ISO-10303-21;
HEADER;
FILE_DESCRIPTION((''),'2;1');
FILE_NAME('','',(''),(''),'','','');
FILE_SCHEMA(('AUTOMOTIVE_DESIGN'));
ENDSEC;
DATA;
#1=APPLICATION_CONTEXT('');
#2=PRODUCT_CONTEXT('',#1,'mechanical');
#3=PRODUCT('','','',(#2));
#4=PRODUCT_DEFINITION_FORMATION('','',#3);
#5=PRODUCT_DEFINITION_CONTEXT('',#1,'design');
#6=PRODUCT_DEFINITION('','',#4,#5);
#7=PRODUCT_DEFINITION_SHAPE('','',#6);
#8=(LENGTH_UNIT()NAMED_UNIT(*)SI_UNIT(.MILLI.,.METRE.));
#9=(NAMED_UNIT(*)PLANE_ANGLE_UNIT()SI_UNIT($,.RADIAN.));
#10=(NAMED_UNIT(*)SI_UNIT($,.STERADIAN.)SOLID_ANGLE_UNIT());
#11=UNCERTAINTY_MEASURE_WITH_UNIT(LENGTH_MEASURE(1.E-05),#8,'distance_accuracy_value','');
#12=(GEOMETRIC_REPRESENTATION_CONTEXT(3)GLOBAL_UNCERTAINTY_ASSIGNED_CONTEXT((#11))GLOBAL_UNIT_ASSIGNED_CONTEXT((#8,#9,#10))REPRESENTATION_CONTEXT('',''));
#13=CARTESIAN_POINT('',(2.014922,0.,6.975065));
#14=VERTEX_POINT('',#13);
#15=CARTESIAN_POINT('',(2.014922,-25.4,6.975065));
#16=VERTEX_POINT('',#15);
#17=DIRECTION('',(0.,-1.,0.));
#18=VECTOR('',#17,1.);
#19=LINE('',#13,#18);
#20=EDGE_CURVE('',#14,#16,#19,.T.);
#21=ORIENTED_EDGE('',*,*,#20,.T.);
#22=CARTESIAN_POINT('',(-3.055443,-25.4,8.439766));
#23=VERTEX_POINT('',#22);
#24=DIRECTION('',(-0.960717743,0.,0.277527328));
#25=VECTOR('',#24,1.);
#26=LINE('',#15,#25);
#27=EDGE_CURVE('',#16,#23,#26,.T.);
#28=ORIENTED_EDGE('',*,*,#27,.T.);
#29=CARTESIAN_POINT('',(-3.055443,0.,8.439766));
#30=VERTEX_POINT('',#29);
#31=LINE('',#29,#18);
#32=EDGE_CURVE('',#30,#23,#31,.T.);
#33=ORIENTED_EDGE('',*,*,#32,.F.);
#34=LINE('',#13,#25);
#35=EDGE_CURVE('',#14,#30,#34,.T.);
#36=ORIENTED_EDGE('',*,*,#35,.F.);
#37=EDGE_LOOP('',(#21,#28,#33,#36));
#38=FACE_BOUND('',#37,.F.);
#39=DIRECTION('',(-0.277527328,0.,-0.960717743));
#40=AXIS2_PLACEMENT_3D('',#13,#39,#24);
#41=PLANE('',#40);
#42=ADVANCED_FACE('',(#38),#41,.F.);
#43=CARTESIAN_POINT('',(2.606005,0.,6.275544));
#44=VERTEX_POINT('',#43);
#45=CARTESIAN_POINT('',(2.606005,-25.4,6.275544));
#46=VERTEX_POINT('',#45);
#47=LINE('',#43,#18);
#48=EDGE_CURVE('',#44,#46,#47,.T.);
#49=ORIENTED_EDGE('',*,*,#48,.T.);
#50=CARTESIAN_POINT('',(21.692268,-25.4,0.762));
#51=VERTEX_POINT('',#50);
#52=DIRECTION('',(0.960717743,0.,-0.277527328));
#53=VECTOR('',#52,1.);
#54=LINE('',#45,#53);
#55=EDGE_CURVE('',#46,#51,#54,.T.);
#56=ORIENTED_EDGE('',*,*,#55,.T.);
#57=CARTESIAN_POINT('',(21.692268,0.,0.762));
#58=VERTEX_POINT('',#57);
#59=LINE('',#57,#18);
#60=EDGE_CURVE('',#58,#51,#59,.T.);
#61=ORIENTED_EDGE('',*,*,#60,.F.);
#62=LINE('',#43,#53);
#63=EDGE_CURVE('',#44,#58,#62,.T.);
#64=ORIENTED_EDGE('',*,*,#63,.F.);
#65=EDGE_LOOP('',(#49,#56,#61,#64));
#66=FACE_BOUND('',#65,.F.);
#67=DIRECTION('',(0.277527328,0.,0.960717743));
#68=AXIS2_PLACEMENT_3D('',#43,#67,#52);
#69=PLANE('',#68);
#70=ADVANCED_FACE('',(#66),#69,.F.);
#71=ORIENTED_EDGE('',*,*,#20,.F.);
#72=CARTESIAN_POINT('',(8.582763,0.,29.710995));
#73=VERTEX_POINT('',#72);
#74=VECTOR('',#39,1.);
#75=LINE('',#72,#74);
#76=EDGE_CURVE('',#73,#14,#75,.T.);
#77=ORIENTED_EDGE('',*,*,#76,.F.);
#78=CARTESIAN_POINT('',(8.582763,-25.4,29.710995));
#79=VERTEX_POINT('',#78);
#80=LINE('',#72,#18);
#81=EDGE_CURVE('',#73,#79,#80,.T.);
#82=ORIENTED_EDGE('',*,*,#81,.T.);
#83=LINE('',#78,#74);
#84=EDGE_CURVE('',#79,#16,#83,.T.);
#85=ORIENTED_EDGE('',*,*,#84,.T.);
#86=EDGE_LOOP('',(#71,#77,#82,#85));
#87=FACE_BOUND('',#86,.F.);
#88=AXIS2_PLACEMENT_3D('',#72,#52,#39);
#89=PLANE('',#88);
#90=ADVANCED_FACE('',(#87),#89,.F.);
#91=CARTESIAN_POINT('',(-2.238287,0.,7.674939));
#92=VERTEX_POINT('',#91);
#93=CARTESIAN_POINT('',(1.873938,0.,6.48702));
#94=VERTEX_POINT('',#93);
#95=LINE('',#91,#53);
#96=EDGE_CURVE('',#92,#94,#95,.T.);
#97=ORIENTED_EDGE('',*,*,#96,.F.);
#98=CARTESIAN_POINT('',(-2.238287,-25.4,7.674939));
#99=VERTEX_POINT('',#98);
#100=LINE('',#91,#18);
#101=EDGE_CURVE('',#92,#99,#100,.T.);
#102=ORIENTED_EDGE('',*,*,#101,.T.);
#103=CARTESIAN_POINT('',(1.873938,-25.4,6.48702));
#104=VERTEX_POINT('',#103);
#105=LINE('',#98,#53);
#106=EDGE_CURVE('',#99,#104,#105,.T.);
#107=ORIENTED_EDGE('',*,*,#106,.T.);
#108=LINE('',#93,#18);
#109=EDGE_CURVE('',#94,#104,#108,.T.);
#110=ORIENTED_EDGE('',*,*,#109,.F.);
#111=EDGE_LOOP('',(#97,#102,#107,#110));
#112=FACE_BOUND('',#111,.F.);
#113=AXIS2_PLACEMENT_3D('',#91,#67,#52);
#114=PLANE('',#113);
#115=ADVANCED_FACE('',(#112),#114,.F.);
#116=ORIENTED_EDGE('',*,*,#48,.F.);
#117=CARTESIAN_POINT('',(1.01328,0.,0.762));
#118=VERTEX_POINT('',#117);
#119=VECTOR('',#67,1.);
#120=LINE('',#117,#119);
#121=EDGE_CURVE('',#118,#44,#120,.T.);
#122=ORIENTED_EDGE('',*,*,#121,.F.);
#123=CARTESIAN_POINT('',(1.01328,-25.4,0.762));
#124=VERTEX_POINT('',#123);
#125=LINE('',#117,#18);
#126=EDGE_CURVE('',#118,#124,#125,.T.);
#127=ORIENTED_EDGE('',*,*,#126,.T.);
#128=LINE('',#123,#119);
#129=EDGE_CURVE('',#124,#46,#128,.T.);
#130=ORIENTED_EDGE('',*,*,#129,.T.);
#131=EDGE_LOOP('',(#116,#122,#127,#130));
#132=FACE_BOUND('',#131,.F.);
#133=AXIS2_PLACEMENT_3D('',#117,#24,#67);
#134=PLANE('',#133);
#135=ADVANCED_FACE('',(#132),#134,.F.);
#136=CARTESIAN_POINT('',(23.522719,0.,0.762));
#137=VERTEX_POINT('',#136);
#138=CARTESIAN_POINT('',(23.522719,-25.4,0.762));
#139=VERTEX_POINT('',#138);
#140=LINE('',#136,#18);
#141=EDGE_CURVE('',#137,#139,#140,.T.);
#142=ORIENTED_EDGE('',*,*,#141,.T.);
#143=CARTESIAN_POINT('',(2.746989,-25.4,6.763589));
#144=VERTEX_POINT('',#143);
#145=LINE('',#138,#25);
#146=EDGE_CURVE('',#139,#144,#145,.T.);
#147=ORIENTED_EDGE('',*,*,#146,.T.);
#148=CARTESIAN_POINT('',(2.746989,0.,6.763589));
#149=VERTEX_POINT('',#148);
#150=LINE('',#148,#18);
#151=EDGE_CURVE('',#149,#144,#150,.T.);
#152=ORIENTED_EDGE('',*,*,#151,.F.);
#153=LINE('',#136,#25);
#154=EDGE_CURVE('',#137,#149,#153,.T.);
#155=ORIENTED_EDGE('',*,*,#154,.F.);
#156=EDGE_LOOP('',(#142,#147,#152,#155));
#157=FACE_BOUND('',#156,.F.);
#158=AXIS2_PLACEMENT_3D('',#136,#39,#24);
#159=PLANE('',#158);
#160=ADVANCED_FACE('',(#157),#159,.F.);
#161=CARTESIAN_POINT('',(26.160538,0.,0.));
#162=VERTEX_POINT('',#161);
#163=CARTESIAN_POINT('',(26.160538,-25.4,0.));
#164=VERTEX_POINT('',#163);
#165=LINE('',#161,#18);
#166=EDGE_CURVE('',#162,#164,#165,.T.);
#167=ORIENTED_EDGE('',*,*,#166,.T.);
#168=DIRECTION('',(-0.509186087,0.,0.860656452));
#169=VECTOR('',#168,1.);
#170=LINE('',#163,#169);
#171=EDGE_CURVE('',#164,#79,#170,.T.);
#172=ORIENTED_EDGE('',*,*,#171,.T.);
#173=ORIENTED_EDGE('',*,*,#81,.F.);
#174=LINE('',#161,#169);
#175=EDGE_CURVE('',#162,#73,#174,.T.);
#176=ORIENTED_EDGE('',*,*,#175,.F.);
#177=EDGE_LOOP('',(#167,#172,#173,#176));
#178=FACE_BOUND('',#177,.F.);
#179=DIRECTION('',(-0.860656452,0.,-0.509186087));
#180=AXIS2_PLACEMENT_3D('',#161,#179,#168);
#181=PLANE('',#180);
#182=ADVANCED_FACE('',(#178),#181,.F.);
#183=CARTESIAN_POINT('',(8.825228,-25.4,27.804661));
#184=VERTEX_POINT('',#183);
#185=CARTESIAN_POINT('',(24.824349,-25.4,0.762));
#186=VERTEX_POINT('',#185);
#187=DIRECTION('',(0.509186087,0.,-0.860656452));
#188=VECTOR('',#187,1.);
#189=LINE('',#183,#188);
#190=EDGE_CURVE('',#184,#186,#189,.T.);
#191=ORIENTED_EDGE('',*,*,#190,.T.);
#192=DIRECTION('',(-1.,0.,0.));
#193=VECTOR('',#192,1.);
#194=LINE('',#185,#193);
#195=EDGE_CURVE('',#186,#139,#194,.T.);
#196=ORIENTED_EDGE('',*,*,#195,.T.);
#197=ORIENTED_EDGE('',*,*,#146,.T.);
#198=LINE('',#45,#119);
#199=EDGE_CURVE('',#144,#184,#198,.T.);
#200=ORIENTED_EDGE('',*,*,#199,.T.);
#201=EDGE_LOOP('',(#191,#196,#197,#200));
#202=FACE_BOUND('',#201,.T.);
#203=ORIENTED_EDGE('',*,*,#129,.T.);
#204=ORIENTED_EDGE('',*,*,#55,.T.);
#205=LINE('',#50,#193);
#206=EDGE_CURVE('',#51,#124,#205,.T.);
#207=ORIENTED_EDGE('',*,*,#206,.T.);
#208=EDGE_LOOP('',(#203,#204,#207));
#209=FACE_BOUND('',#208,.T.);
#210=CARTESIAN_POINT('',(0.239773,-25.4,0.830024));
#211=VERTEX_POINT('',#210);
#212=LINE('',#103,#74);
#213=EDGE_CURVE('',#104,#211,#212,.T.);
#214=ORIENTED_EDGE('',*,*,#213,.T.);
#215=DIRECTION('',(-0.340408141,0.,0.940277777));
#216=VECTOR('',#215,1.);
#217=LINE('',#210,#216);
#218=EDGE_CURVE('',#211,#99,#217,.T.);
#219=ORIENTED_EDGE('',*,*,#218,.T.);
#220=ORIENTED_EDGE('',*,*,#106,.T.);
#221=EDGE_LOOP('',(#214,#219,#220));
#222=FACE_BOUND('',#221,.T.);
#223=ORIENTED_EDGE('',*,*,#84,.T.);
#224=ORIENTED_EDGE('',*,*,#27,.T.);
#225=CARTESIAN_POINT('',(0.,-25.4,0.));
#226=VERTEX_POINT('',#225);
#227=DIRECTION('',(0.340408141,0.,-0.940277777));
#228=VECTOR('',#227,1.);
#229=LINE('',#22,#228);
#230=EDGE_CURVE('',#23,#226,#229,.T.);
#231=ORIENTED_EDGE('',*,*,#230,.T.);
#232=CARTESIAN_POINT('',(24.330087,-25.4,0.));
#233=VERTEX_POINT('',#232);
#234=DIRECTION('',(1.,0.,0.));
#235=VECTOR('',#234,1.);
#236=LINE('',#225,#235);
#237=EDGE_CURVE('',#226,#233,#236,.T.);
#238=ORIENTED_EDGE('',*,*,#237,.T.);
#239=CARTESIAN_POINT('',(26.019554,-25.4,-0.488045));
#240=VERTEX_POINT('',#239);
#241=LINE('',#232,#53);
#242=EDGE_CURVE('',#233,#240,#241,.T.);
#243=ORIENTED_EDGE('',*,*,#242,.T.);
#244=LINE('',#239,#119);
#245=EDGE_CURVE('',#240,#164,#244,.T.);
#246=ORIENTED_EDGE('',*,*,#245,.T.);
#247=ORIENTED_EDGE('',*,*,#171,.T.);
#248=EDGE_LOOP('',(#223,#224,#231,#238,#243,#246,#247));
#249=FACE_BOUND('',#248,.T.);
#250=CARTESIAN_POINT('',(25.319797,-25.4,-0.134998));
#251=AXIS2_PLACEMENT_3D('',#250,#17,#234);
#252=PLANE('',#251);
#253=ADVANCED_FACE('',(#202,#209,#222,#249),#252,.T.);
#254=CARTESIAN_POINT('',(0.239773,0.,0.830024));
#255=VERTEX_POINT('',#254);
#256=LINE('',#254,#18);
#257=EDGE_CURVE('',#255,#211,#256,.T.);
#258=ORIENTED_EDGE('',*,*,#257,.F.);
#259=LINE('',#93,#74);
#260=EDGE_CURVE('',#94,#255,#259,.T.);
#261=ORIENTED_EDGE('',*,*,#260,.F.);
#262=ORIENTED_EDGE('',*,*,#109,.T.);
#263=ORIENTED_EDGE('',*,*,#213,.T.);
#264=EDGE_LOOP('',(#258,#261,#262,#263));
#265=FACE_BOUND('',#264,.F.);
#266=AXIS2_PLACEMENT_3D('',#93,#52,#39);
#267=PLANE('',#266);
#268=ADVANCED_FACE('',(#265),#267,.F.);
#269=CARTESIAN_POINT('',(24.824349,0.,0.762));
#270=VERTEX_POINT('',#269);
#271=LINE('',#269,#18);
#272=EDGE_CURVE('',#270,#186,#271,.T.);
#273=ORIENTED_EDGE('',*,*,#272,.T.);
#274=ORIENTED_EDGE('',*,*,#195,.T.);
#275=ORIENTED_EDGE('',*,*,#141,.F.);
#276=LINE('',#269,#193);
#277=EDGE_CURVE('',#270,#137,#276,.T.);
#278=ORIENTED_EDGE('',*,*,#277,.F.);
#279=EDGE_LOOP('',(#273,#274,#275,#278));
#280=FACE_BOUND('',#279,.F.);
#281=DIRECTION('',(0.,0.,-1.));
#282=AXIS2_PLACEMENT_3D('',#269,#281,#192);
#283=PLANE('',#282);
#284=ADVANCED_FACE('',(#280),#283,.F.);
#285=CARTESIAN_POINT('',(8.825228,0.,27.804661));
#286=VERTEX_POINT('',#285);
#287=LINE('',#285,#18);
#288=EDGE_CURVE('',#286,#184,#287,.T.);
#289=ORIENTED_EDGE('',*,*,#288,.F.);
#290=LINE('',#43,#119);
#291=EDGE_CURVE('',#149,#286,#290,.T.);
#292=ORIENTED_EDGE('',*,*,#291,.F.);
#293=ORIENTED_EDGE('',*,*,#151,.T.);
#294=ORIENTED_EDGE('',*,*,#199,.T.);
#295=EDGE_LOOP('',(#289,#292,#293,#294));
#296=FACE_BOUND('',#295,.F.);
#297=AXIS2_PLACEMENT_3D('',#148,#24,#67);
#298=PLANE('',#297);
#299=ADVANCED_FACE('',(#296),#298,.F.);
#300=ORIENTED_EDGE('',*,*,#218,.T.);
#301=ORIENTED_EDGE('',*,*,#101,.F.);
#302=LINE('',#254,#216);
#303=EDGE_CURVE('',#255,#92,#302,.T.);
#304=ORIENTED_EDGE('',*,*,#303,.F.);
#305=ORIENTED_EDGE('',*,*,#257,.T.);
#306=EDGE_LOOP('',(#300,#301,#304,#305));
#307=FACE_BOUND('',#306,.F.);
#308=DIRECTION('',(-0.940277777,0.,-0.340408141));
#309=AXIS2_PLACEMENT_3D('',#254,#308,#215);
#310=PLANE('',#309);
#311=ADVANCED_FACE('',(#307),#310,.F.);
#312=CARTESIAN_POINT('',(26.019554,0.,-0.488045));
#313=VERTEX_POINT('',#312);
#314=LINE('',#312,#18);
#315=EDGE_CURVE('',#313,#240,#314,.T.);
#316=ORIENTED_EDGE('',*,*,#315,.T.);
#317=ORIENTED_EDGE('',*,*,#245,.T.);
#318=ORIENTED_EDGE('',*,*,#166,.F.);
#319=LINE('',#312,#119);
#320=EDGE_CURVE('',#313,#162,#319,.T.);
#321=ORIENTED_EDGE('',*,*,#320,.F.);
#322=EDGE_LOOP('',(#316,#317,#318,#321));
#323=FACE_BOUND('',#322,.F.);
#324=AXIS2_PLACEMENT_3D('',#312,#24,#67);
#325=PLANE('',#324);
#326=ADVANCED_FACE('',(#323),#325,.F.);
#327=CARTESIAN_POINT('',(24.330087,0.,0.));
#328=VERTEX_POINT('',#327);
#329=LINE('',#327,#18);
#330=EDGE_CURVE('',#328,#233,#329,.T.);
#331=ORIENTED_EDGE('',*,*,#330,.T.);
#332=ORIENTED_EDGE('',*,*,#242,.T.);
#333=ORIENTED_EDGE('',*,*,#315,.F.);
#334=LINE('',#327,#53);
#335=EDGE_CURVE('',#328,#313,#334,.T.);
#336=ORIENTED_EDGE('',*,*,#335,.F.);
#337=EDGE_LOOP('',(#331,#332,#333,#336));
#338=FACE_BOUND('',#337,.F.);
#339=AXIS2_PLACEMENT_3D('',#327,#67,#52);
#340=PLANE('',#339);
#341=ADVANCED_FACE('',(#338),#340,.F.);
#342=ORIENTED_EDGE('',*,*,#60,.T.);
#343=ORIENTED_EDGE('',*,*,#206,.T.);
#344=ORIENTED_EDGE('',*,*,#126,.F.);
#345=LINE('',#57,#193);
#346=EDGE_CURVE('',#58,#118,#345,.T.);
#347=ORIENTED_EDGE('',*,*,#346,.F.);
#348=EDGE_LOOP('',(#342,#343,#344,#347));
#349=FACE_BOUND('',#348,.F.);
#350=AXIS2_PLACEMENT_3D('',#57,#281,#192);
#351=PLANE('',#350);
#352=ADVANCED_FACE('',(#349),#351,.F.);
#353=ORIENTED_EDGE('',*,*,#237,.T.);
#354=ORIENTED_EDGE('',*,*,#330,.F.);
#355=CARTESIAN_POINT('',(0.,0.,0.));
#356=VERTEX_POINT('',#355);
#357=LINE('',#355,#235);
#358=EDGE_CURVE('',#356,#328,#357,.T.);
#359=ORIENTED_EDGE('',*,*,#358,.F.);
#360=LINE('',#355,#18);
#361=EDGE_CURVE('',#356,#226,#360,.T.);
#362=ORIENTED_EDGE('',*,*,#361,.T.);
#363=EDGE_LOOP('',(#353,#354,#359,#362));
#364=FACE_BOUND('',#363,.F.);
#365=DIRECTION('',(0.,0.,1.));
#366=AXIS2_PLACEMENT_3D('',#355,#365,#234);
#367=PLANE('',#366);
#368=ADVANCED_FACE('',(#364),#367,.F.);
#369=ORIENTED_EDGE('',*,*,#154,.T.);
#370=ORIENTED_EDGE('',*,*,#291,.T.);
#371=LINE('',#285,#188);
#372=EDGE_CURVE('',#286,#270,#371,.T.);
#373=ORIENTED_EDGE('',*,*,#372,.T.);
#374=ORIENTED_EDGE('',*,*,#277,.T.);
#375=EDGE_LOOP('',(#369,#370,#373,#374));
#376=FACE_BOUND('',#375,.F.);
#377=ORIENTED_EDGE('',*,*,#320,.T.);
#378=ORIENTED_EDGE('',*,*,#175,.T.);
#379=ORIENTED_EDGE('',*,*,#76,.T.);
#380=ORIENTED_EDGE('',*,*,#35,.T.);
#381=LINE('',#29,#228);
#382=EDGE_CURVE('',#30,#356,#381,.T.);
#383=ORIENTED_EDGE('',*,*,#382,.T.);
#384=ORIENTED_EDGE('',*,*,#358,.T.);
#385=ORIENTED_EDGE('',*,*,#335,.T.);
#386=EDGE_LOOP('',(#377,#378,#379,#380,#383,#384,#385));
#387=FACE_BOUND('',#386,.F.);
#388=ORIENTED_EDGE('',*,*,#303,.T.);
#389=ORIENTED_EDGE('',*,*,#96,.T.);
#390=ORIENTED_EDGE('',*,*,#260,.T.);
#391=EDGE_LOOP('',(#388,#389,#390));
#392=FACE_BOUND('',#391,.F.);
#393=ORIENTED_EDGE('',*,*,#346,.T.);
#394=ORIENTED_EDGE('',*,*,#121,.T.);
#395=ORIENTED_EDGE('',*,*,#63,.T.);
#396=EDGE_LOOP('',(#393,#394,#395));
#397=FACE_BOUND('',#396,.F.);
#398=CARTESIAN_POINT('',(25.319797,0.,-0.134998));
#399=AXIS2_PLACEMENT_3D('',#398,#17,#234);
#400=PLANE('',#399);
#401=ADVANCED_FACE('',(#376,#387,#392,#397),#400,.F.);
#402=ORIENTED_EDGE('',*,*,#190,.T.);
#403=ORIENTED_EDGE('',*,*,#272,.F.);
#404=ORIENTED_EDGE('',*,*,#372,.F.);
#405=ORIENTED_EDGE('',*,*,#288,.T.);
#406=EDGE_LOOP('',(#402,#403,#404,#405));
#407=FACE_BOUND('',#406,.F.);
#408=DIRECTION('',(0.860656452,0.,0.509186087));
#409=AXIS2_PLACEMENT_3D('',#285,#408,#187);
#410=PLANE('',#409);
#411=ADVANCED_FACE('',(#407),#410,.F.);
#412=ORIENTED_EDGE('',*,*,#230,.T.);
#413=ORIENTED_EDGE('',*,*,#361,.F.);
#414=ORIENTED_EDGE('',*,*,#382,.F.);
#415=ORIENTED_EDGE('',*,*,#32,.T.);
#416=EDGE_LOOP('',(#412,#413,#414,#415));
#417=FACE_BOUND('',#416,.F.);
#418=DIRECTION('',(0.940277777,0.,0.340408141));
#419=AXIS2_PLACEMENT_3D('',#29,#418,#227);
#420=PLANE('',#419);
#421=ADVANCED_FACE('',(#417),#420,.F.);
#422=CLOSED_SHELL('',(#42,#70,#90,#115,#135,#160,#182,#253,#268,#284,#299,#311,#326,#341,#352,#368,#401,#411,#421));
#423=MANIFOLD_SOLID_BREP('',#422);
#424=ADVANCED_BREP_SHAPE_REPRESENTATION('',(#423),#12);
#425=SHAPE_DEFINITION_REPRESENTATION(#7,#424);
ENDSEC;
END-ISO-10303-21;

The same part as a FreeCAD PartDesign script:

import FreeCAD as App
import Part
import Sketcher

V = App.Vector
Q = App.Units.Quantity

doc = App.newDocument("Part")
body = doc.addObject("PartDesign::Body", "Body")

# Sketch on XZ plane
sketch1 = body.newObject("Sketcher::SketchObject", "Sketch")
sketch1.AttachmentSupport = (doc.getObject("XZ_Plane"), [""])
sketch1.MapMode = "FlatFace"
sketch1.addGeometry([
    Part.LineSegment(V(24.3, 0, 0), V(26, -0.5, 0)),  # 0
    Part.LineSegment(V(26, -0.5, 0), V(26.2, 0, 0)),  # 1
    Part.LineSegment(V(26.2, 0, 0), V(8.6, 29.7, 0)),  # 2
    Part.LineSegment(V(8.6, 29.7, 0), V(2, 7, 0)),  # 3
    Part.LineSegment(V(2, 7, 0), V(-3.1, 8.4, 0)),  # 4
    Part.LineSegment(V(-3.1, 8.4, 0), V(0, 0, 0)),  # 5
    Part.LineSegment(V(0, 0, 0), V(24.3, 0, 0)),  # 6
    Part.LineSegment(V(0.2, 0.8, 0), V(-2.2, 7.7, 0)),  # 7
    Part.LineSegment(V(-2.2, 7.7, 0), V(1.9, 6.5, 0)),  # 8
    Part.LineSegment(V(1.9, 6.5, 0), V(0.2, 0.8, 0)),  # 9
    Part.LineSegment(V(2.6, 6.3, 0), V(21.7, 0.8, 0)),  # 10
    Part.LineSegment(V(21.7, 0.8, 0), V(1, 0.8, 0)),  # 11
    Part.LineSegment(V(1, 0.8, 0), V(2.6, 6.3, 0)),  # 12
    Part.LineSegment(V(2.7, 6.8, 0), V(8.8, 27.8, 0)),  # 13
    Part.LineSegment(V(8.8, 27.8, 0), V(24.8, 0.8, 0)),  # 14
    Part.LineSegment(V(24.8, 0.8, 0), V(23.5, 0.8, 0)),  # 15
    Part.LineSegment(V(23.5, 0.8, 0), V(2.7, 6.8, 0)),  # 16
], False)
sketch1.addConstraint([
    Sketcher.Constraint("Coincident", 0, 2, 1, 1),
    Sketcher.Constraint("Coincident", 1, 2, 2, 1),
    Sketcher.Constraint("Coincident", 2, 2, 3, 1),
    Sketcher.Constraint("Coincident", 3, 2, 4, 1),
    Sketcher.Constraint("Coincident", 4, 2, 5, 1),
    Sketcher.Constraint("Coincident", 5, 2, 6, 1),
    Sketcher.Constraint("Coincident", 6, 2, 0, 1),
    Sketcher.Constraint("Coincident", 7, 2, 8, 1),
    Sketcher.Constraint("Coincident", 8, 2, 9, 1),
    Sketcher.Constraint("Coincident", 9, 2, 7, 1),
    Sketcher.Constraint("Coincident", 10, 2, 11, 1),
    Sketcher.Constraint("Coincident", 11, 2, 12, 1),
    Sketcher.Constraint("Coincident", 12, 2, 10, 1),
    Sketcher.Constraint("Coincident", 13, 2, 14, 1),
    Sketcher.Constraint("Coincident", 14, 2, 15, 1),
    Sketcher.Constraint("Coincident", 15, 2, 16, 1),
    Sketcher.Constraint("Coincident", 16, 2, 13, 1),
    Sketcher.Constraint("Horizontal", 6),
    Sketcher.Constraint("Horizontal", 11),
    Sketcher.Constraint("Horizontal", 15),
    Sketcher.Constraint("Coincident", 5, 2, -1, 1),
    Sketcher.Constraint("PointOnObject", 1, 2, -1),
    Sketcher.Constraint("Perpendicular", 0, 1),
    Sketcher.Constraint("Parallel", 1, 3),
    Sketcher.Constraint("Perpendicular", 3, 4),
    Sketcher.Constraint("Parallel", 5, 7),
    Sketcher.Constraint("Parallel", 4, 8),
    Sketcher.Constraint("Perpendicular", 8, 9),
    Sketcher.Constraint("Perpendicular", 9, 10),
    Sketcher.Constraint("Perpendicular", 10, 12),
    Sketcher.Constraint("Parallel", 12, 13),
    Sketcher.Constraint("Parallel", 2, 14),
    Sketcher.Constraint("Perpendicular", 13, 16),
    Sketcher.Constraint("Horizontal", 11, 2, 14, 2),
    Sketcher.Constraint("Distance", 1, Q("0.02 in")),
    Sketcher.Constraint("DistanceY", -1, 1, 10, 2, Q("0.03 in")),
    Sketcher.Constraint("DistanceX", 11, 2, 11, 1, Q("20.678988 mm")),
    Sketcher.Constraint("DistanceX", 15, 2, 15, 1, Q("1.30163 mm")),
    Sketcher.Constraint("DistanceY", 3, 2, 4, 2, Q("1.464702 mm")),
    Sketcher.Constraint("Distance", 10, Q("19.866671 mm")),
    Sketcher.Constraint("Distance", 13, Q("21.901409 mm")),
    Sketcher.Constraint("Distance", 14, Q("31.42097 mm")),
    Sketcher.Constraint("DistanceX", 6, 1, 6, 2, Q("24.330087 mm")),
    Sketcher.Constraint("DistanceX", -1, 1, 3, 2, Q("2.014922 mm")),
    Sketcher.Constraint("DistanceY", -1, 1, 7, 2, Q("7.674939 mm")),
    Sketcher.Constraint("DistanceY", -1, 1, 8, 2, Q("6.48702 mm")),
    Sketcher.Constraint("DistanceX", -1, 1, 10, 2, Q("21.692268 mm")),
    Sketcher.Constraint("DistanceX", -1, 1, 13, 2, Q("8.825228 mm")),
    Sketcher.Constraint("DistanceX", 2, 2, 0, 2, Q("17.436791 mm")),
    Sketcher.Constraint("DistanceX", 7, 2, 3, 2, Q("4.253209 mm")),
])
pad1 = body.newObject("PartDesign::Pad", "Pad")
pad1.Profile = sketch1
pad1.Length = Q("1 in")

doc.recompute()
